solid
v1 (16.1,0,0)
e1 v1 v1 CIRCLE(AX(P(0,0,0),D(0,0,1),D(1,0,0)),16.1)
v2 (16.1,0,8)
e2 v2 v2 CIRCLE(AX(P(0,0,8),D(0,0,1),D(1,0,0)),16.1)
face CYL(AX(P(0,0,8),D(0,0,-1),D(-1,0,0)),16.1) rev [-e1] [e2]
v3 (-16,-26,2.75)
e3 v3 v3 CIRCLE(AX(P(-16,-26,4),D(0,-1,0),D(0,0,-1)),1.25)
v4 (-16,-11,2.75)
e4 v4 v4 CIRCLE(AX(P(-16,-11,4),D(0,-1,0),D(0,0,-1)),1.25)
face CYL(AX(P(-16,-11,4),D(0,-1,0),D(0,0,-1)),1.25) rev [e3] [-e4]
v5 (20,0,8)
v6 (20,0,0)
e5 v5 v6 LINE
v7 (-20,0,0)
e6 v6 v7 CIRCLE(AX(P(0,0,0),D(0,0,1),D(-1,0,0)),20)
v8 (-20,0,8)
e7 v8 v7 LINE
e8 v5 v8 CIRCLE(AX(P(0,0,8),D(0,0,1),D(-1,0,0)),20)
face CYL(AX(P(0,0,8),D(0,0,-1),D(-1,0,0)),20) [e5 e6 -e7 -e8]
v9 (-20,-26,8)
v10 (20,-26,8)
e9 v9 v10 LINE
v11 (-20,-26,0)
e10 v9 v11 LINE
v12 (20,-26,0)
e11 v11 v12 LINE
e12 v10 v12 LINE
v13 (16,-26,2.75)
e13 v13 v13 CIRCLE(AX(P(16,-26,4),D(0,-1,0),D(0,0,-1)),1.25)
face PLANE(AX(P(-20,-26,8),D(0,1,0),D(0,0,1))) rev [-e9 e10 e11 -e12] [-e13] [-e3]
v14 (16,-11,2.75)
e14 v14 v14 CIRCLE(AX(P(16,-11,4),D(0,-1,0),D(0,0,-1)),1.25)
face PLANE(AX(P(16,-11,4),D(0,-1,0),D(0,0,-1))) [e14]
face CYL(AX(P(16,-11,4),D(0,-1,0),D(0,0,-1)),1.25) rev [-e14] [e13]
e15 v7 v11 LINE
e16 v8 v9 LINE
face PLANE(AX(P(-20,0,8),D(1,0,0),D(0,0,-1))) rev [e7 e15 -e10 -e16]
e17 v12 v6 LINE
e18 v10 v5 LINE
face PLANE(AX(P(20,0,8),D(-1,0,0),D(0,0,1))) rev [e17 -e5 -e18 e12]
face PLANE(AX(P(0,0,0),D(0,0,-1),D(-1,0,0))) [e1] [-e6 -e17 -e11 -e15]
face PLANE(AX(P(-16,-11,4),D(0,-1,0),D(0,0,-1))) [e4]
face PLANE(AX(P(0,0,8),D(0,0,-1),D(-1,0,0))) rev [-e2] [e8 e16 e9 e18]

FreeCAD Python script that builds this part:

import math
import FreeCAD as App
import Part
import Sketcher
from FreeCAD import Vector

doc = App.newDocument("Part")
body = doc.addObject("PartDesign::Body", "Body")

# Sketch on XY plane
sketch1 = body.newObject("Sketcher::SketchObject", "Sketch")
sketch1.AttachmentSupport = (doc.getObject("XY_Plane"), [""])
sketch1.MapMode = "FlatFace"
sketch1.addGeometry([
    Part.LineSegment(Vector(-20, 0, 0), Vector(-20, -26, 0)),  # 0
    Part.LineSegment(Vector(-20, -26, 0), Vector(20, -26, 0)),  # 1
    Part.LineSegment(Vector(20, -26, 0), Vector(20, 0, 0)),  # 2
    Part.ArcOfCircle(Part.Circle(Vector(0, 0, 0), Vector(0, 0, 1), 20), math.radians(0), math.radians(180)),  # 3
    Part.Circle(Vector(0, 0, 0), Vector(0, 0, 1), 16),  # 4
], False)
sketch1.addConstraint([
    Sketcher.Constraint("Coincident", 0, 2, 1, 1),
    Sketcher.Constraint("Coincident", 1, 2, 2, 1),
    Sketcher.Constraint("Tangent", 2, 2, 3, 1),
    Sketcher.Constraint("Tangent", 3, 2, 0, 1),
    Sketcher.Constraint("Vertical", 0),
    Sketcher.Constraint("Horizontal", 1),
    Sketcher.Constraint("Vertical", 2),
    Sketcher.Constraint("Coincident", 3, 3, -1, 1),
    Sketcher.Constraint("Coincident", 4, 3, -1, 1),
    Sketcher.Constraint("Radius", 3, 20.0),
    Sketcher.Constraint("Diameter", 4, 32.2),
    Sketcher.Constraint("DistanceY", 0, 2, 0, 1, 26.0),
])
pad1 = body.newObject("PartDesign::Pad", "Pad")
pad1.Profile = sketch1
pad1.Length = 8

# Sketch on XZ plane
sketch2 = body.newObject("Sketcher::SketchObject", "Sketch001")
sketch2.AttachmentSupport = (doc.getObject("XZ_Plane"), [""])
sketch2.MapMode = "FlatFace"
sketch2.AttachmentOffset = App.Placement(Vector(0, 0, 26), App.Rotation())
sketch2.addGeometry([
    Part.Circle(Vector(-16, 4, 0), Vector(0, 0, 1), 1.2),
    Part.Circle(Vector(16, 4, 0), Vector(0, 0, 1), 1.2),
], False)
sketch2.addConstraint([
    Sketcher.Constraint("Equal", 0, 1),
    Sketcher.Constraint("Symmetric", 0, 3, 1, 3, -2),
    Sketcher.Constraint("Diameter", 0, 2.5),
    Sketcher.Constraint("DistanceX", 0, 3, -1, 1, 16.0),
    Sketcher.Constraint("DistanceY", -1, 1, 0, 3, 4.0),
])
pocket1 = body.newObject("PartDesign::Pocket", "Pocket")
pocket1.Profile = sketch2
pocket1.Length = 15

doc.recompute()
